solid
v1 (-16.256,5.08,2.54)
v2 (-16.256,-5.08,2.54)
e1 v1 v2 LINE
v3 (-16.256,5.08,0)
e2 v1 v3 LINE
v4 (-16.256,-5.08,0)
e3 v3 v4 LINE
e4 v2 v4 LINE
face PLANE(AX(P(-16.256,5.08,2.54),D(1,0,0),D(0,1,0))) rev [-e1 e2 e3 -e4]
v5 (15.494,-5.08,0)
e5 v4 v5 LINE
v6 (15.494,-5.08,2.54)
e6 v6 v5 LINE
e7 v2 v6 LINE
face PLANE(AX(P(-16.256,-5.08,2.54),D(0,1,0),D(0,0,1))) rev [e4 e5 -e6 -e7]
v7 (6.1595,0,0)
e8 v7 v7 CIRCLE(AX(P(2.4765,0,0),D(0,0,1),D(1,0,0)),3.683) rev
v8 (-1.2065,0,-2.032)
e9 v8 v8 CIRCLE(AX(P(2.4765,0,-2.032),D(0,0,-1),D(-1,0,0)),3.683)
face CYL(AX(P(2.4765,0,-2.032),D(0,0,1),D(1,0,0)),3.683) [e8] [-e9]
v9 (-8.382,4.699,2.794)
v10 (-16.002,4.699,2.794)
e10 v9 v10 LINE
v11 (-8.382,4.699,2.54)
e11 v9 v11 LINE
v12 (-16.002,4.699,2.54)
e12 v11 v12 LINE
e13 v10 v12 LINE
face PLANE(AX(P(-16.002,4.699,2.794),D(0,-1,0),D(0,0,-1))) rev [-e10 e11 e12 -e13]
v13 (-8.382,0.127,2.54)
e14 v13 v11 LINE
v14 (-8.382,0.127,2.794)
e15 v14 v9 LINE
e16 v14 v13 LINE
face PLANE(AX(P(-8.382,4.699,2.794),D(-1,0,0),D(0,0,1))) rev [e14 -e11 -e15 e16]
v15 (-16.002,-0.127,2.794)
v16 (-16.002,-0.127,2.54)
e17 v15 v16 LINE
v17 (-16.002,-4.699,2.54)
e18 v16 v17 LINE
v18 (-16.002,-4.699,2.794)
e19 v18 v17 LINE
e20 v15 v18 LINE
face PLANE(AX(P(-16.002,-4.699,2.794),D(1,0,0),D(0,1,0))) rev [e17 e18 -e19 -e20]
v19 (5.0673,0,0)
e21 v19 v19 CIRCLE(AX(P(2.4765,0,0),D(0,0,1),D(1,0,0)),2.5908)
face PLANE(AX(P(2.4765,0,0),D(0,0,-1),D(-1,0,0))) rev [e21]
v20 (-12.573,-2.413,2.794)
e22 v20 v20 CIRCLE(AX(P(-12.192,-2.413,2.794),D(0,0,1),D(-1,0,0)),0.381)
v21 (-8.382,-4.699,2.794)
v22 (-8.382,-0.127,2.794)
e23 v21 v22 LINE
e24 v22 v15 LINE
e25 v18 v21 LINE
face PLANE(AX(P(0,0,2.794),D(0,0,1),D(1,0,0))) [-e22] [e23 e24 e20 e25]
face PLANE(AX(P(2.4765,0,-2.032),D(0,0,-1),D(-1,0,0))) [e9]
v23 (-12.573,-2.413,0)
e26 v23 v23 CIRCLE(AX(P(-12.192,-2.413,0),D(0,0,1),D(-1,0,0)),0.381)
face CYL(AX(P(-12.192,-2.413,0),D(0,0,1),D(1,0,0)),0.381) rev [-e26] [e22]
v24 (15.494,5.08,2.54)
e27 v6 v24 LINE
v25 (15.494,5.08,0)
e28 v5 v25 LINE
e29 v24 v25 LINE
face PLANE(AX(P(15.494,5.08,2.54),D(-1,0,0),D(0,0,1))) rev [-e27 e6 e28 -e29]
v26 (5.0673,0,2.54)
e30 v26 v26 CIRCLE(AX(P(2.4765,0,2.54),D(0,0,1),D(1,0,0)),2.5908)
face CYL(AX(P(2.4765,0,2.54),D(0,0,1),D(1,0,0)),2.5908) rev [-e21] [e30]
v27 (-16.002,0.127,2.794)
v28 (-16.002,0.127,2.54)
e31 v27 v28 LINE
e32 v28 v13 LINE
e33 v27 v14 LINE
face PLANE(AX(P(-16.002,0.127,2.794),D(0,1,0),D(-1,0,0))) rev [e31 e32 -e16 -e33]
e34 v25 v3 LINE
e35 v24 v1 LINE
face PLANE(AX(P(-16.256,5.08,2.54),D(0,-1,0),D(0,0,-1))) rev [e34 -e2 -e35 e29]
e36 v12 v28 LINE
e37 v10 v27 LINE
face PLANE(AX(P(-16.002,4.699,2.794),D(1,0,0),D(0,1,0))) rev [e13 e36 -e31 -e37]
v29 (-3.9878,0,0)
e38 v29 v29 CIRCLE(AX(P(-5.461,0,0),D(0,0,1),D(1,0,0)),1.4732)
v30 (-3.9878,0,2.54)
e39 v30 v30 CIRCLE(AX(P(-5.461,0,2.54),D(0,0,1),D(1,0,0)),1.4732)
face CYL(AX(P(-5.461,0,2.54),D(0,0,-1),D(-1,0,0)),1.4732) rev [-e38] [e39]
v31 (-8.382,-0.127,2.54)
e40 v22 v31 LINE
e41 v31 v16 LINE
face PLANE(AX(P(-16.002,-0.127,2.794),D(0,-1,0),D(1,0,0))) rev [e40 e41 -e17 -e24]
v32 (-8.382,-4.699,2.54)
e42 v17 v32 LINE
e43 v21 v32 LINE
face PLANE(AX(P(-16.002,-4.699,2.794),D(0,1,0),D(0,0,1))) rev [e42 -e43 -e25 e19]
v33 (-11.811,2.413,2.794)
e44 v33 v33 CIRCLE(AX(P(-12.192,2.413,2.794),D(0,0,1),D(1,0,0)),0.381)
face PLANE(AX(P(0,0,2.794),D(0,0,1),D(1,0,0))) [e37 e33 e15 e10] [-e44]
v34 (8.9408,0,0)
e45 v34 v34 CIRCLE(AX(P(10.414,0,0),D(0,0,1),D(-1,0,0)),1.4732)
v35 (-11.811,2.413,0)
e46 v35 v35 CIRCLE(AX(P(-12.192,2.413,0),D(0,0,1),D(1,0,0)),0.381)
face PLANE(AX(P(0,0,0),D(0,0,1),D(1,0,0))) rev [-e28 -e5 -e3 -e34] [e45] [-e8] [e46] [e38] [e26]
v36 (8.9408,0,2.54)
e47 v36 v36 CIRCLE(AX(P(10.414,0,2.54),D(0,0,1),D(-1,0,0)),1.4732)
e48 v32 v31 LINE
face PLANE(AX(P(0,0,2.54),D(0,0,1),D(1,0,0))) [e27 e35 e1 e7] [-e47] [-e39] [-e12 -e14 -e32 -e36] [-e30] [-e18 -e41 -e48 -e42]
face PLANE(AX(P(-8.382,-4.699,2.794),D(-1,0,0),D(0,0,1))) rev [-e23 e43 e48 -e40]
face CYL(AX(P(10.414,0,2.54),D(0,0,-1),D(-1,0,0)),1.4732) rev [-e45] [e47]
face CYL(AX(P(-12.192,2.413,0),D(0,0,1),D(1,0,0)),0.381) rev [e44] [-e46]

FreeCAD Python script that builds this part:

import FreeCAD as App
import Part
import Sketcher
from FreeCAD import Vector
Q = App.Units.Quantity


def add_polygon(sketch, points):
    """Adds a closed chain of lines whose ends are joined by coincident constraints."""
    first, n = sketch.GeometryCount, len(points)
    for a, b in zip(points, points[1:] + points[:1]):
        sketch.addGeometry(Part.LineSegment(App.Vector(*a, 0), App.Vector(*b, 0)), False)
    for i in range(n):
        sketch.addConstraint(Sketcher.Constraint("Coincident", first + i, 2, first + (i + 1) % n, 1))

doc = App.newDocument("Part")
body = doc.addObject("PartDesign::Body", "Body")

# Sketch on XY plane
sketch1 = body.newObject("Sketcher::SketchObject", "Sketch")
sketch1.AttachmentSupport = (doc.getObject("XY_Plane"), [""])
sketch1.MapMode = "FlatFace"
add_polygon(sketch1, [(-16.3, 5.1), (-16.3, -5.1), (15.5, -5.1), (15.5, 5.1)])  # lines 0-3
sketch1.addGeometry(Part.Circle(Vector(-5.5, 0, 0), Vector(0, 0, 1), 1.5), False)  # 4
sketch1.addGeometry(Part.Circle(Vector(10.4, 0, 0), Vector(0, 0, 1), 1.5), False)  # 5
sketch1.addConstraint([
    Sketcher.Constraint("Vertical", 0),
    Sketcher.Constraint("Horizontal", 1),
    Sketcher.Constraint("Vertical", 2),
    Sketcher.Constraint("Horizontal", 3),
    Sketcher.Constraint("Equal", 4, 5),
    Sketcher.Constraint("PointOnObject", 4, 3, -1),
    Sketcher.Constraint("PointOnObject", 5, 3, -1),
    Sketcher.Constraint("Diameter", 4, Q("0.116 in")),
    Sketcher.Constraint("DistanceY", 0, 2, 0, 1, Q("0.4 in")),
    Sketcher.Constraint("DistanceX", 1, 1, 1, 2, Q("1.25 in")),
    Sketcher.Constraint("DistanceY", 0, 2, -1, 1, Q("0.2 in")),
    Sketcher.Constraint("DistanceX", 5, 3, 1, 2, Q("0.2 in")),
    Sketcher.Constraint("DistanceX", -1, 1, 5, 3, Q("0.41 in")),
    Sketcher.Constraint("DistanceX", 4, 3, -1, 1, Q("0.215 in")),
])
pad1 = body.newObject("PartDesign::Pad", "Pad")
pad1.Profile = sketch1
pad1.Length = Q("0.1 in")

# Sketch on XY plane
sketch2 = body.newObject("Sketcher::SketchObject", "Sketch001")
sketch2.AttachmentSupport = (doc.getObject("XY_Plane"), [""])
sketch2.MapMode = "FlatFace"
sketch2.AttachmentOffset = App.Placement(Vector(0, 0, 0.1 * 25.4), App.Rotation())
sketch2.addGeometry(Part.Circle(Vector(2.5, 0, 0), Vector(0, 0, 1), 2.6), False)
sketch2.addConstraint([
    Sketcher.Constraint("PointOnObject", 0, 3, -1),
    Sketcher.Constraint("Diameter", 0, Q("0.204 in")),
    Sketcher.Constraint("DistanceX", -1, 1, 0, 3, Q("0.0975 in")),
])
doc.recompute()
hole = body.newObject("PartDesign::Hole", "Hole")
hole.Profile = sketch2
hole.ThreadType = "None"
hole.Diameter = Q("0.204 in")
hole.DepthType = "ThroughAll"

# Sketch on XY plane
sketch3 = body.newObject("Sketcher::SketchObject", "Sketch002")
sketch3.AttachmentSupport = (doc.getObject("XY_Plane"), [""])
sketch3.MapMode = "FlatFace"
sketch3.AttachmentOffset = App.Placement(Vector(0, 0, 0.1 * 25.4), App.Rotation())
add_polygon(sketch3, [(-16, 4.7), (-16, 0.1), (-8.4, 0.1), (-8.4, 4.7)])  # lines 0-3
add_polygon(sketch3, [(-16, -0.1), (-16, -4.7), (-8.4, -4.7), (-8.4, -0.1)])  # lines 4-7
sketch3.addConstraint([
    Sketcher.Constraint("Vertical", 0),
    Sketcher.Constraint("Horizontal", 1),
    Sketcher.Constraint("Vertical", 2),
    Sketcher.Constraint("Horizontal", 3),
    Sketcher.Constraint("Vertical", 4),
    Sketcher.Constraint("Horizontal", 5),
    Sketcher.Constraint("Vertical", 6),
    Sketcher.Constraint("Horizontal", 7),
    Sketcher.Constraint("Symmetric", 3, 2, 4, 2, -1),
    Sketcher.Constraint("Symmetric", 1, 2, 6, 2, -1),
    Sketcher.Constraint("DistanceX", 1, 1, 1, 2, Q("0.3 in")),
    Sketcher.Constraint("DistanceY", 0, 2, 0, 1, Q("0.18 in")),
    Sketcher.Constraint("DistanceX", 0, 2, -1, 1, Q("0.63 in")),
    Sketcher.Constraint("DistanceY", 4, 2, 0, 2, Q("0.19 in")),
])
pad2 = body.newObject("PartDesign::Pad", "Pad001")
pad2.Profile = sketch3
pad2.Length = Q("0.01 in")

# Sketch on XY plane
sketch4 = body.newObject("Sketcher::SketchObject", "Sketch003")
sketch4.AttachmentSupport = (doc.getObject("XY_Plane"), [""])
sketch4.MapMode = "FlatFace"
sketch4.AttachmentOffset = App.Placement(Vector(0, 0, 0.11 * 25.4), App.Rotation())
sketch4.addGeometry([
    Part.Circle(Vector(-12.19, 2.41, 0), Vector(0, 0, 1), 0.38),
    Part.Circle(Vector(-12.19, -2.41, 0), Vector(0, 0, 1), 0.38),
], False)
sketch4.addConstraint([
    Sketcher.Constraint("Equal", 0, 1),
    Sketcher.Constraint("Symmetric", 0, 3, 1, 3, -1),
    Sketcher.Constraint("Diameter", 0, Q("0.03 in")),
    Sketcher.Constraint("DistanceX", 0, 3, -1, 1, Q("0.48 in")),
    Sketcher.Constraint("DistanceY", 1, 3, 0, 3, Q("0.19 in")),
])
pocket1 = body.newObject("PartDesign::Pocket", "Pocket")
pocket1.Profile = sketch4
pocket1.Type = "ThroughAll"

# Sketch on XY plane
sketch5 = body.newObject("Sketcher::SketchObject", "Sketch004")
sketch5.AttachmentSupport = (doc.getObject("XY_Plane"), [""])
sketch5.MapMode = "FlatFace"
sketch5.addGeometry(Part.Circle(Vector(2.5, 0, 0), Vector(0, 0, 1), 3.7), False)
sketch5.addConstraint([
    Sketcher.Constraint("PointOnObject", 0, 3, -1),
    Sketcher.Constraint("Diameter", 0, Q("0.29 in")),
    Sketcher.Constraint("DistanceX", -1, 1, 0, 3, Q("0.0975 in")),
])
pad3 = body.newObject("PartDesign::Pad", "Pad002")
pad3.Profile = sketch5
pad3.Length = Q("0.08 in")
pad3.Reversed = True

doc.recompute()
